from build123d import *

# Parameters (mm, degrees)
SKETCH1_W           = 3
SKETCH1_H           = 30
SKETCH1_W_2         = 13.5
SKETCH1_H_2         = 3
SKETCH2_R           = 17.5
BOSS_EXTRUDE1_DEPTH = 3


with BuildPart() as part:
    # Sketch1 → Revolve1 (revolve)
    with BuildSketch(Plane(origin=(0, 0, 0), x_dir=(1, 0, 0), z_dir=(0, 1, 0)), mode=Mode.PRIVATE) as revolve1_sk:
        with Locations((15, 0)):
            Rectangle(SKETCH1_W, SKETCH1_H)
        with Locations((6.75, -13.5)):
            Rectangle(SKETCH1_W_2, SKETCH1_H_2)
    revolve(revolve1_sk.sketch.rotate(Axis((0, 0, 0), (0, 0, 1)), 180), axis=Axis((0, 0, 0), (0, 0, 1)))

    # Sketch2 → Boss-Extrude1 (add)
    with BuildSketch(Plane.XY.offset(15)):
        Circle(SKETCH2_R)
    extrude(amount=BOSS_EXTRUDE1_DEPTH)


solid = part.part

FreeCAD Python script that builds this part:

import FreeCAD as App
import Part
import Sketcher
from FreeCAD import Vector


def add_polygon(sketch, points):
    """Adds a closed chain of lines whose ends are joined by coincident constraints."""
    first, n = sketch.GeometryCount, len(points)
    for a, b in zip(points, points[1:] + points[:1]):
        sketch.addGeometry(Part.LineSegment(App.Vector(*a, 0), App.Vector(*b, 0)), False)
    for i in range(n):
        sketch.addConstraint(Sketcher.Constraint("Coincident", first + i, 2, first + (i + 1) % n, 1))

doc = App.newDocument("Part")
body = doc.addObject("PartDesign::Body", "Body")

# Sketch on XZ plane
sketch1 = body.newObject("Sketcher::SketchObject", "Sketch")
sketch1.AttachmentSupport = (doc.getObject("XZ_Plane"), [""])
sketch1.MapMode = "FlatFace"
add_polygon(sketch1, [(13.5, -15), (13.5, 12), (0, 12), (0, 15), (16.5, 15), (16.5, -15)])  # lines 0-5
sketch1.addConstraint([
    Sketcher.Constraint("Vertical", 0),
    Sketcher.Constraint("Horizontal", 1),
    Sketcher.Constraint("Vertical", 2),
    Sketcher.Constraint("Horizontal", 3),
    Sketcher.Constraint("Vertical", 4),
    Sketcher.Constraint("Horizontal", 5),
    Sketcher.Constraint("PointOnObject", 1, 2, -2),
    Sketcher.Constraint("Equal", 5, 2),
    Sketcher.Constraint("DistanceX", 5, 2, 5, 1, 3.0),
    Sketcher.Constraint("DistanceY", 0, 1, 0, 2, 27.0),
    Sketcher.Constraint("DistanceX", 1, 2, 1, 1, 13.5),
    Sketcher.Constraint("DistanceY", -1, 1, 0, 2, 12.0),
])
revolution = body.newObject("PartDesign::Revolution", "Revolution")
revolution.Profile = sketch1
revolution.ReferenceAxis = (sketch1, ["V_Axis"])
revolution.Angle = 360

# Sketch on XY plane
sketch2 = body.newObject("Sketcher::SketchObject", "Sketch001")
sketch2.AttachmentSupport = (doc.getObject("XY_Plane"), [""])
sketch2.MapMode = "FlatFace"
sketch2.AttachmentOffset = App.Placement(Vector(0, 0, 15), App.Rotation())
sketch2.addGeometry(Part.Circle(Vector(0, 0, 0), Vector(0, 0, 1), 18), False)
sketch2.addConstraint([
    Sketcher.Constraint("Coincident", 0, 3, -1, 1),
    Sketcher.Constraint("Diameter", 0, 35.0),
])
pad1 = body.newObject("PartDesign::Pad", "Pad")
pad1.Profile = sketch2
pad1.Length = 3

doc.recompute()
